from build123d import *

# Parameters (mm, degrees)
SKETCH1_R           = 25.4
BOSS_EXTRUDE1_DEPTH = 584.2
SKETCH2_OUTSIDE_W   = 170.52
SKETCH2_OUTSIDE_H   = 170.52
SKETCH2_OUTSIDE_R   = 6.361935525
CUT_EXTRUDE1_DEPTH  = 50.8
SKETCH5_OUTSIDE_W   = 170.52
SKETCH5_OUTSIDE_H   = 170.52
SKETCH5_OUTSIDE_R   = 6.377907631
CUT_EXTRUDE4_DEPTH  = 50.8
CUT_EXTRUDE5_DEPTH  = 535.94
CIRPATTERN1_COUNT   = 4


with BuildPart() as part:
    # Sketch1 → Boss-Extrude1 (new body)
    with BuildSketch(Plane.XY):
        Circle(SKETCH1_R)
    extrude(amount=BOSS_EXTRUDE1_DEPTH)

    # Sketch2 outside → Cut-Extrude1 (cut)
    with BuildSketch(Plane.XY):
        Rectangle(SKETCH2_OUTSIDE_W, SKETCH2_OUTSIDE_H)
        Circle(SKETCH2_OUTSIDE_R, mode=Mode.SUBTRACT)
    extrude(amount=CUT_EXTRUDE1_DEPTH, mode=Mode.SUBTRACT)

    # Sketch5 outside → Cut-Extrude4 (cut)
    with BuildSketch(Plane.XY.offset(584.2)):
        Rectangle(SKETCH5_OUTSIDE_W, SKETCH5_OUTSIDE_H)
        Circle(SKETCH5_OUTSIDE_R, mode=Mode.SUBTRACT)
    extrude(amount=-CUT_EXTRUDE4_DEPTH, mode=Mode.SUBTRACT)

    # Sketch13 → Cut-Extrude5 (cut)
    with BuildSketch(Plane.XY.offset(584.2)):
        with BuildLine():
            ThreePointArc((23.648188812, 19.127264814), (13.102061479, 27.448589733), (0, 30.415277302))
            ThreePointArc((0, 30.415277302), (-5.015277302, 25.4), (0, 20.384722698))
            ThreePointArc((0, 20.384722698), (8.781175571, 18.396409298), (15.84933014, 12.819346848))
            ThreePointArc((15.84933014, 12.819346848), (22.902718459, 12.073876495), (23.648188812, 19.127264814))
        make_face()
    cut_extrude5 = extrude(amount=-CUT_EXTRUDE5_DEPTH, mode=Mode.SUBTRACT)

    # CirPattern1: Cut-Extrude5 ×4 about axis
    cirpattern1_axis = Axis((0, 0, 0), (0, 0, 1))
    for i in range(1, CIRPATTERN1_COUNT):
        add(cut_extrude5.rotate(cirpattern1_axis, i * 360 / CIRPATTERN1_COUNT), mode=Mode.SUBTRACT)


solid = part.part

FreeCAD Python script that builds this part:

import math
import FreeCAD as App
import Part
import Sketcher
Q = App.Units.Quantity


def add_polygon(sketch, points):
    """Adds a closed chain of lines whose ends are joined by coincident constraints."""
    first, n = sketch.GeometryCount, len(points)
    for a, b in zip(points, points[1:] + points[:1]):
        sketch.addGeometry(Part.LineSegment(App.Vector(*a, 0), App.Vector(*b, 0)), False)
    for i in range(n):
        sketch.addConstraint(Sketcher.Constraint("Coincident", first + i, 2, first + (i + 1) % n, 1))

doc = App.newDocument("Part")
params = doc.addObject("Spreadsheet::Sheet", "Params")
for row, (alias, value) in enumerate([
    ("sketch1_diameter", "2 in"),
    ("pad1_length", "23 in"),
    ("pocket1_length", "2 in"),
    ("pocket2_length", "2 in"),
    ("pocket3_length", "21.1 in"),
], start=1):
    params.set(f"A{row}", alias)
    params.set(f"B{row}", "=" + value)
    params.setAlias(f"B{row}", alias)

body = doc.addObject("PartDesign::Body", "Body")

# Sketch on XY plane
sketch1 = body.newObject("Sketcher::SketchObject", "Sketch")
sketch1.AttachmentSupport = (doc.getObject("XY_Plane"), [""])
sketch1.MapMode = "FlatFace"
sketch1.addGeometry(Part.Circle(App.Vector(0, 0, 0), App.Vector(0, 0, 1), 25), False)
sketch1.addConstraint(Sketcher.Constraint("Coincident", 0, 3, -1, 1))
sketch1.addConstraint(Sketcher.Constraint("Diameter", 0, Q("2 in")))
sketch1.setExpression("Constraints[1]", "Params.sketch1_diameter")
pad1 = body.newObject("PartDesign::Pad", "Pad")
pad1.Profile = sketch1
pad1.setExpression("Length", "Params.pad1_length")

# Sketch on XY plane
sketch2 = body.newObject("Sketcher::SketchObject", "Sketch001")
sketch2.AttachmentSupport = (doc.getObject("XY_Plane"), [""])
sketch2.MapMode = "FlatFace"
add_polygon(sketch2, [(-85, 85), (-85, -85), (85, -85), (85, 85)])  # lines 0-3
sketch2.addGeometry(Part.Circle(App.Vector(0, 0, 0), App.Vector(0, 0, 1), 6), False)  # 4
sketch2.addConstraint(Sketcher.Constraint("Vertical", 0))
sketch2.addConstraint(Sketcher.Constraint("Horizontal", 1))
sketch2.addConstraint(Sketcher.Constraint("Vertical", 2))
sketch2.addConstraint(Sketcher.Constraint("Horizontal", 3))
sketch2.addConstraint(Sketcher.Constraint("Coincident", 4, 3, -1, 1))
sketch2.addConstraint(Sketcher.Constraint("Symmetric", 0, 2, 2, 2, -1, 1))
sketch2.addConstraint(Sketcher.Constraint("Equal", 3, 0))
sketch2.addConstraint(Sketcher.Constraint("Diameter", 4, Q("12.723871 mm")))
sketch2.addConstraint(Sketcher.Constraint("DistanceX", 1, 1, 1, 2, Q("170.52 mm")))
pocket1 = body.newObject("PartDesign::Pocket", "Pocket")
pocket1.Profile = sketch2
pocket1.setExpression("Length", "Params.pocket1_length")
pocket1.Reversed = True

# Sketch on XY plane
sketch3 = body.newObject("Sketcher::SketchObject", "Sketch002")
sketch3.AttachmentSupport = (doc.getObject("XY_Plane"), [""])
sketch3.MapMode = "FlatFace"
sketch3.AttachmentOffset = App.Placement(App.Vector(0, 0, 23 * 25.4), App.Rotation())
add_polygon(sketch3, [(-85, 85), (-85, -85), (85, -85), (85, 85)])  # lines 0-3
sketch3.addGeometry(Part.Circle(App.Vector(0, 0, 0), App.Vector(0, 0, 1), 6), False)  # 4
sketch3.addConstraint(Sketcher.Constraint("Vertical", 0))
sketch3.addConstraint(Sketcher.Constraint("Horizontal", 1))
sketch3.addConstraint(Sketcher.Constraint("Vertical", 2))
sketch3.addConstraint(Sketcher.Constraint("Horizontal", 3))
sketch3.addConstraint(Sketcher.Constraint("Coincident", 4, 3, -1, 1))
sketch3.addConstraint(Sketcher.Constraint("Symmetric", 0, 2, 2, 2, -1, 1))
sketch3.addConstraint(Sketcher.Constraint("Equal", 3, 0))
sketch3.addConstraint(Sketcher.Constraint("Diameter", 4, Q("12.755815 mm")))
sketch3.addConstraint(Sketcher.Constraint("DistanceX", 1, 1, 1, 2, Q("170.52 mm")))
pocket2 = body.newObject("PartDesign::Pocket", "Pocket001")
pocket2.Profile = sketch3
pocket2.setExpression("Length", "Params.pocket2_length")

# Sketch on XY plane
sketch4 = body.newObject("Sketcher::SketchObject", "Sketch003")
sketch4.AttachmentSupport = (doc.getObject("XY_Plane"), [""])
sketch4.MapMode = "FlatFace"
sketch4.AttachmentOffset = App.Placement(App.Vector(0, 0, 23 * 25.4), App.Rotation())
sketch4.addGeometry(Part.ArcOfCircle(Part.Circle(App.Vector(0, 0, 0), App.Vector(0, 0, 1), 30), math.radians(39), math.radians(90)), False)
sketch4.addGeometry(Part.ArcOfCircle(Part.Circle(App.Vector(0, 25, 0), App.Vector(0, 0, 1), 5), math.radians(90), math.radians(270)), False)
sketch4.addGeometry(Part.ArcOfCircle(Part.Circle(App.Vector(0, 0, 0), App.Vector(0, 0, 1), 20), math.radians(39), math.radians(90)), False)
sketch4.addGeometry(Part.ArcOfCircle(Part.Circle(App.Vector(20, 16, 0), App.Vector(0, 0, 1), 5), math.radians(-141), math.radians(39)), False)
sketch4.addConstraint(Sketcher.Constraint("Tangent", 0, 2, 1, 1))
sketch4.addConstraint(Sketcher.Constraint("Tangent", 1, 2, 2, 2))
sketch4.addConstraint(Sketcher.Constraint("Tangent", 2, 1, 3, 1))
sketch4.addConstraint(Sketcher.Constraint("Tangent", 3, 2, 0, 1))
sketch4.addConstraint(Sketcher.Constraint("Coincident", 0, 3, -1, 1))
sketch4.addConstraint(Sketcher.Constraint("Coincident", 2, 3, -1, 1))
sketch4.addConstraint(Sketcher.Constraint("PointOnObject", 1, 3, -2))
sketch4.addConstraint(Sketcher.Constraint("DistanceY", -1, 1, 1, 3, Q("1 in")))
sketch4.addConstraint(Sketcher.Constraint("Radius", 0, Q("30.415277 mm")))
sketch4.addConstraint(Sketcher.Constraint("DistanceX", -1, 1, 3, 3, Q("19.748759 mm")))
pocket3 = body.newObject("PartDesign::Pocket", "Pocket002")
pocket3.Profile = sketch4
pocket3.setExpression("Length", "Params.pocket3_length")
doc.recompute()

polarpattern = body.newObject("PartDesign::PolarPattern", "PolarPattern")
polarpattern.Originals = [pocket3]
polarpattern.Axis = (doc.getObject("Z_Axis"), [""])
polarpattern.Angle = 360
polarpattern.Occurrences = 4
body.Tip = polarpattern

doc.recompute()
